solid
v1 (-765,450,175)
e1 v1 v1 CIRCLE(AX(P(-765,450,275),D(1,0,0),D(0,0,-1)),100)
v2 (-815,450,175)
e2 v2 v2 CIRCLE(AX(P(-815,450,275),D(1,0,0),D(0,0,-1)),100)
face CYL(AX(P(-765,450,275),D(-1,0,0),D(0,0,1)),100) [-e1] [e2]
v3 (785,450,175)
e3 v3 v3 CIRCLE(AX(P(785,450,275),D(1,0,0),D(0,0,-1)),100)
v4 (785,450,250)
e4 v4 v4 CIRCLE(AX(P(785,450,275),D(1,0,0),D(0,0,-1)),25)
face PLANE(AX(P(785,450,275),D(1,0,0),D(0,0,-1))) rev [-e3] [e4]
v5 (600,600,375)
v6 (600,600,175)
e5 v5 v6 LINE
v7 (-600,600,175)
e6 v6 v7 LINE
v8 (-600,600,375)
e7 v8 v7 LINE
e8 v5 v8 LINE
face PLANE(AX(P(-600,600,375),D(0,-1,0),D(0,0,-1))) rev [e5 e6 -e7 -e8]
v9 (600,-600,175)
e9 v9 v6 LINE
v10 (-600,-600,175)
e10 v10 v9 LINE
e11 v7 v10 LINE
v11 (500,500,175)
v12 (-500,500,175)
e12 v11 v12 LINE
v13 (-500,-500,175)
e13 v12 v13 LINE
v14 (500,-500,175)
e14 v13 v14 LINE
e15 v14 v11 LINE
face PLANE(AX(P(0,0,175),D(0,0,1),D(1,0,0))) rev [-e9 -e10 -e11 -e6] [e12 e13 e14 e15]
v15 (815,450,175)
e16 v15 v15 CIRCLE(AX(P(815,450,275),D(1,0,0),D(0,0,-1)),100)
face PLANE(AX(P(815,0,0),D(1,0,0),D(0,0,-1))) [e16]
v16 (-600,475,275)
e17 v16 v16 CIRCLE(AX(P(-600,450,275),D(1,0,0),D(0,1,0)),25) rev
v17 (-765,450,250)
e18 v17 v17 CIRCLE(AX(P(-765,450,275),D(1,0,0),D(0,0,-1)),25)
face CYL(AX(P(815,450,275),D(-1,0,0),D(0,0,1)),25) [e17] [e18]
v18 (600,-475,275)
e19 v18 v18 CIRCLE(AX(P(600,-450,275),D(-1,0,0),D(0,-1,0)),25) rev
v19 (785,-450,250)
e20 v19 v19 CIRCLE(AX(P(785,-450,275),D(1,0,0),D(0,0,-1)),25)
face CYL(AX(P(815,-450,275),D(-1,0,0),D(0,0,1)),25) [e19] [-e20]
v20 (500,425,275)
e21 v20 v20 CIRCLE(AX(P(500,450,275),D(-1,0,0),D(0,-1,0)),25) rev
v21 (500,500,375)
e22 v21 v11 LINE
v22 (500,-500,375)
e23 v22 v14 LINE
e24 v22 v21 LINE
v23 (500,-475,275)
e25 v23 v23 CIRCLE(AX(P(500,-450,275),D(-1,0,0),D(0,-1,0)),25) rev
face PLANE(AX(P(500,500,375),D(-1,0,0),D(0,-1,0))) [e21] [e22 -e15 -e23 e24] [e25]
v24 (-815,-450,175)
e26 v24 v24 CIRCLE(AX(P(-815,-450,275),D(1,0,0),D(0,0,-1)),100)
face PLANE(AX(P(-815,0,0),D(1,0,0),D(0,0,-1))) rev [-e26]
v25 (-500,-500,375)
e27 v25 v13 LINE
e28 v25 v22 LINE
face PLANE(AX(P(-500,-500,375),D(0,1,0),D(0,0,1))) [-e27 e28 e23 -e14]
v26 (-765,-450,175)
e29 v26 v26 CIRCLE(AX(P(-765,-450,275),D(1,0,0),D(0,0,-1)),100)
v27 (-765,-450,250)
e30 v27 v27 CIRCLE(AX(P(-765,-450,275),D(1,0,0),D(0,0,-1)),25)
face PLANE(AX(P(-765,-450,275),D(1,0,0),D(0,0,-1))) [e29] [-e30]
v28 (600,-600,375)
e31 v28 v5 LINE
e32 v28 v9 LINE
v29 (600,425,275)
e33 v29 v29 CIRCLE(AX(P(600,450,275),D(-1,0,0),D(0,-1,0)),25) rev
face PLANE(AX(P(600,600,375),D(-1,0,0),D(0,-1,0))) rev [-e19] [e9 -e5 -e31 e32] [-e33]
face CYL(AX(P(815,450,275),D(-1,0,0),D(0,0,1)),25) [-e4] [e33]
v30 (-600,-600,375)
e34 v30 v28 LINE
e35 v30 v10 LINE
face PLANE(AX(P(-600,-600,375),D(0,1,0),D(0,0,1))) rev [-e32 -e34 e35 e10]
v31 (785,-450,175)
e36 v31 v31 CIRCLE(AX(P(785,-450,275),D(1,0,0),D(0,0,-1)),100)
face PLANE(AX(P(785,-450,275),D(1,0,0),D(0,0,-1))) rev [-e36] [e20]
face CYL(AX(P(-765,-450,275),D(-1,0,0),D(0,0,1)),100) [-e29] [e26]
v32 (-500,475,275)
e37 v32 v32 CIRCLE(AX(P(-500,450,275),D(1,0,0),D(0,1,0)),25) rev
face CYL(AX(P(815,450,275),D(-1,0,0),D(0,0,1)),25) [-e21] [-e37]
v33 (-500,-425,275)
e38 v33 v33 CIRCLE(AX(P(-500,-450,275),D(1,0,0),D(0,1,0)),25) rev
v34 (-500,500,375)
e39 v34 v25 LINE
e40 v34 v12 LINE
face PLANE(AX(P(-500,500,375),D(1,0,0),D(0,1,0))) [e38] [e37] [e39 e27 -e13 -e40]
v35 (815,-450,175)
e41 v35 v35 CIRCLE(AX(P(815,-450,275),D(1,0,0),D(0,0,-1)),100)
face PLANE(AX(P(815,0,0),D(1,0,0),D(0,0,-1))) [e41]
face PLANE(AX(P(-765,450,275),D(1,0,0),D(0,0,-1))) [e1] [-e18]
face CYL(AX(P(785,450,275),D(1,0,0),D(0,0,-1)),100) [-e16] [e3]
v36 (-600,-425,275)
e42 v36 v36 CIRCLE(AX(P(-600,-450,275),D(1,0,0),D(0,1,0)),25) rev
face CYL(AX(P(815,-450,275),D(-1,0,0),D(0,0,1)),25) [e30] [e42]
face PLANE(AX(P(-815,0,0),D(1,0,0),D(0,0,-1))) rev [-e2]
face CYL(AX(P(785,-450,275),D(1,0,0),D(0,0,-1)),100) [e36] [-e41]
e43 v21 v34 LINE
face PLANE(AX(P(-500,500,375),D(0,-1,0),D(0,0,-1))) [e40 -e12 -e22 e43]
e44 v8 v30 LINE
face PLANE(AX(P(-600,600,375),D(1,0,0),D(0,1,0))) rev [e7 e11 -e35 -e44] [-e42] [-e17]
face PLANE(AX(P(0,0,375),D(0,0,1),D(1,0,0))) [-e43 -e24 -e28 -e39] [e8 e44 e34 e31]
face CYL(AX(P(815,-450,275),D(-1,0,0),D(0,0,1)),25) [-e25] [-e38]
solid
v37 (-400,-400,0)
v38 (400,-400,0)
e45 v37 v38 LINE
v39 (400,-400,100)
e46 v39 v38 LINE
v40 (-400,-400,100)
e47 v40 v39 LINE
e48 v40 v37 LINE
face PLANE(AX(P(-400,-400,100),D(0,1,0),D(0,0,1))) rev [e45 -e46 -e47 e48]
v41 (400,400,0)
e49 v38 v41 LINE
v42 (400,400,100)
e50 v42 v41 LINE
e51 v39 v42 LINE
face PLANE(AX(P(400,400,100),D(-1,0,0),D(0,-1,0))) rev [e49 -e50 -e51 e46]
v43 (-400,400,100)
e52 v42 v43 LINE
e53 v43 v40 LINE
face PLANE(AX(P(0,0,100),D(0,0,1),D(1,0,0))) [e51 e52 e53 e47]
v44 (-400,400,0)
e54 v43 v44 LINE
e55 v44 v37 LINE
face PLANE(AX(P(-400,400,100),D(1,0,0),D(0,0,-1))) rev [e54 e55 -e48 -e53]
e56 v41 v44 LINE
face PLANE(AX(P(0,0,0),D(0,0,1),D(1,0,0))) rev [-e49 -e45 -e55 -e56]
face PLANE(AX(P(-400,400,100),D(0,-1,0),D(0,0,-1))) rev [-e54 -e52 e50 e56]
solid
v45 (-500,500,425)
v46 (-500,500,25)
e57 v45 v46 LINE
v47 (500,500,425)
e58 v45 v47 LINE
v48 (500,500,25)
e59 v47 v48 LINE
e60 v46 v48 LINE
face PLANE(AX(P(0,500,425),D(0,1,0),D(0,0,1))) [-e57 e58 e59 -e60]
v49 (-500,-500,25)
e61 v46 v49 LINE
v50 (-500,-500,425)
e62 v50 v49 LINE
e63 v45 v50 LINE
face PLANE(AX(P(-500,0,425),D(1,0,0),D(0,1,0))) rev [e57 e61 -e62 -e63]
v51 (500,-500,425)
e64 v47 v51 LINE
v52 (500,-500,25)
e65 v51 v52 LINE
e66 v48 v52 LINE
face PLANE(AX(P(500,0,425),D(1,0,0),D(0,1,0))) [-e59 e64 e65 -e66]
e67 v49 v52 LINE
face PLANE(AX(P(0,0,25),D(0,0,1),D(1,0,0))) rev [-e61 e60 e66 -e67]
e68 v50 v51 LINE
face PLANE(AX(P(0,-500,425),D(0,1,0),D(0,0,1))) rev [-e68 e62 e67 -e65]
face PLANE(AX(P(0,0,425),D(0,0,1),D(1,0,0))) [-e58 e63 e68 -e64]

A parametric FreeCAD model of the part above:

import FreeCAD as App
import Part
import Sketcher
from FreeCAD import Vector


def add_polygon(sketch, points):
    """Adds a closed chain of lines whose ends are joined by coincident constraints."""
    first, n = sketch.GeometryCount, len(points)
    for a, b in zip(points, points[1:] + points[:1]):
        sketch.addGeometry(Part.LineSegment(App.Vector(*a, 0), App.Vector(*b, 0)), False)
    for i in range(n):
        sketch.addConstraint(Sketcher.Constraint("Coincident", first + i, 2, first + (i + 1) % n, 1))

doc = App.newDocument("Part")
params = doc.addObject("Spreadsheet::Sheet", "Params")
for row, (alias, value) in enumerate([
    ("sketch1_width", "800 mm"),
    ("pad1_length", "100 mm"),
    ("sketch2_width", "1000 mm"),
    ("pad2_length", "400 mm"),
    ("sketch3_width", "1200 mm"),
    ("sketch3_width2", "1000 mm"),
    ("pad3_length", "200 mm"),
    ("sketch4_diameter", "50 mm"),
    ("pad4_length", "1630 mm"),
    ("sketch5_diameter", "200 mm"),
    ("sketch5_diameter2", "50 mm"),
    ("pad5_length", "30 mm"),
    ("sketch6_diameter", "200 mm"),
    ("sketch6_diameter2", "50 mm"),
    ("pad6_length", "50 mm"),
], start=1):
    params.set(f"A{row}", alias)
    params.set(f"B{row}", "=" + value)
    params.setAlias(f"B{row}", alias)

body = doc.addObject("PartDesign::Body", "Body")

# Sketch on XY plane
sketch1 = body.newObject("Sketcher::SketchObject", "Sketch")
sketch1.AttachmentSupport = (doc.getObject("XY_Plane"), [""])
sketch1.MapMode = "FlatFace"
add_polygon(sketch1, [(-400, 400), (-400, -400), (400, -400), (400, 400)])  # lines 0-3
sketch1.addConstraint(Sketcher.Constraint("Vertical", 0))
sketch1.addConstraint(Sketcher.Constraint("Horizontal", 1))
sketch1.addConstraint(Sketcher.Constraint("Vertical", 2))
sketch1.addConstraint(Sketcher.Constraint("Horizontal", 3))
sketch1.addConstraint(Sketcher.Constraint("Symmetric", 0, 2, 2, 2, -1, 1))
sketch1.addConstraint(Sketcher.Constraint("Equal", 3, 0))
sketch1.addConstraint(Sketcher.Constraint("DistanceX", 1, 1, 1, 2, 800.0))
sketch1.setExpression("Constraints[10]", "Params.sketch1_width")
pad1 = body.newObject("PartDesign::Pad", "Pad")
pad1.Profile = sketch1
pad1.setExpression("Length", "Params.pad1_length")
body2 = doc.addObject("PartDesign::Body", "Body001")

# Sketch on XY plane
sketch2 = body2.newObject("Sketcher::SketchObject", "Sketch001")
sketch2.AttachmentSupport = (doc.getObject("XY_Plane001"), [""])
sketch2.MapMode = "FlatFace"
sketch2.AttachmentOffset = App.Placement(Vector(0, 0, 25), App.Rotation())
add_polygon(sketch2, [(-500, 500), (-500, -500), (500, -500), (500, 500)])  # lines 0-3
sketch2.addConstraint(Sketcher.Constraint("Vertical", 0))
sketch2.addConstraint(Sketcher.Constraint("Horizontal", 1))
sketch2.addConstraint(Sketcher.Constraint("Vertical", 2))
sketch2.addConstraint(Sketcher.Constraint("Horizontal", 3))
sketch2.addConstraint(Sketcher.Constraint("Symmetric", 0, 2, 2, 2, -1, 1))
sketch2.addConstraint(Sketcher.Constraint("Equal", 3, 0))
sketch2.addConstraint(Sketcher.Constraint("DistanceX", 1, 1, 1, 2, 1000.0))
sketch2.setExpression("Constraints[10]", "Params.sketch2_width")
pad2 = body2.newObject("PartDesign::Pad", "Pad001")
pad2.Profile = sketch2
pad2.setExpression("Length", "Params.pad2_length")
body3 = doc.addObject("PartDesign::Body", "Body002")

# Sketch on XY plane
sketch3 = body3.newObject("Sketcher::SketchObject", "Sketch002")
sketch3.AttachmentSupport = (doc.getObject("XY_Plane002"), [""])
sketch3.MapMode = "FlatFace"
sketch3.AttachmentOffset = App.Placement(Vector(0, 0, 175), App.Rotation())
add_polygon(sketch3, [(-600, 600), (-600, -600), (600, -600), (600, 600)])  # lines 0-3
add_polygon(sketch3, [(500, -500), (-500, -500), (-500, 500), (500, 500)])  # lines 4-7
sketch3.addConstraint(Sketcher.Constraint("Vertical", 0))
sketch3.addConstraint(Sketcher.Constraint("Horizontal", 1))
sketch3.addConstraint(Sketcher.Constraint("Vertical", 2))
sketch3.addConstraint(Sketcher.Constraint("Horizontal", 3))
sketch3.addConstraint(Sketcher.Constraint("Horizontal", 4))
sketch3.addConstraint(Sketcher.Constraint("Vertical", 5))
sketch3.addConstraint(Sketcher.Constraint("Horizontal", 6))
sketch3.addConstraint(Sketcher.Constraint("Vertical", 7))
sketch3.addConstraint(Sketcher.Constraint("Symmetric", 0, 2, 2, 2, -1, 1))
sketch3.addConstraint(Sketcher.Constraint("Symmetric", 4, 2, 6, 2, -1, 1))
sketch3.addConstraint(Sketcher.Constraint("Equal", 3, 0))
sketch3.addConstraint(Sketcher.Constraint("Equal", 6, 5))
sketch3.addConstraint(Sketcher.Constraint("DistanceX", 1, 1, 1, 2, 1200.0))
sketch3.addConstraint(Sketcher.Constraint("DistanceX", 4, 2, 4, 1, 1000.0))
sketch3.setExpression("Constraints[20]", "Params.sketch3_width")
sketch3.setExpression("Constraints[21]", "Params.sketch3_width2")
pad3 = body3.newObject("PartDesign::Pad", "Pad002")
pad3.Profile = sketch3
pad3.setExpression("Length", "Params.pad3_length")

# Sketch on YZ plane
sketch4 = body3.newObject("Sketcher::SketchObject", "Sketch003")
sketch4.AttachmentSupport = (doc.getObject("YZ_Plane002"), [""])
sketch4.MapMode = "FlatFace"
sketch4.addGeometry(Part.Circle(Vector(450, 275, 0), Vector(0, 0, 1), 25), False)
sketch4.addGeometry(Part.Circle(Vector(-450, 275, 0), Vector(0, 0, 1), 25), False)
sketch4.addConstraint(Sketcher.Constraint("Equal", 0, 1))
sketch4.addConstraint(Sketcher.Constraint("Symmetric", 0, 3, 1, 3, -2))
sketch4.addConstraint(Sketcher.Constraint("Diameter", 0, 50.0))
sketch4.addConstraint(Sketcher.Constraint("DistanceX", -1, 1, 0, 3, 450.0))
sketch4.addConstraint(Sketcher.Constraint("DistanceY", -1, 1, 0, 3, 275.0))
sketch4.setExpression("Constraints[2]", "Params.sketch4_diameter")
pad4 = body3.newObject("PartDesign::Pad", "Pad003")
pad4.Profile = sketch4
pad4.setExpression("Length", "Params.pad4_length")
pad4.Midplane = True

# Sketch on YZ plane
sketch5 = body3.newObject("Sketcher::SketchObject", "Sketch004")
sketch5.AttachmentSupport = (doc.getObject("YZ_Plane002"), [""])
sketch5.MapMode = "FlatFace"
sketch5.AttachmentOffset = App.Placement(Vector(0, 0, 815), App.Rotation())
sketch5.addGeometry(Part.Circle(Vector(-450, 275, 0), Vector(0, 0, 1), 100), False)
sketch5.addGeometry(Part.Circle(Vector(-450, 275, 0), Vector(0, 0, 1), 25), False)
sketch5.addGeometry(Part.Circle(Vector(450, 275, 0), Vector(0, 0, 1), 100), False)
sketch5.addGeometry(Part.Circle(Vector(450, 275, 0), Vector(0, 0, 1), 25), False)
sketch5.addConstraint(Sketcher.Constraint("Coincident", 1, 3, 0, 3))
sketch5.addConstraint(Sketcher.Constraint("Coincident", 3, 3, 2, 3))
sketch5.addConstraint(Sketcher.Constraint("Equal", 0, 2))
sketch5.addConstraint(Sketcher.Constraint("Equal", 1, 3))
sketch5.addConstraint(Sketcher.Constraint("Symmetric", 0, 3, 2, 3, -2))
sketch5.addConstraint(Sketcher.Constraint("Diameter", 0, 200.0))
sketch5.addConstraint(Sketcher.Constraint("Diameter", 1, 50.0))
sketch5.addConstraint(Sketcher.Constraint("DistanceX", 0, 3, -1, 1, 450.0))
sketch5.addConstraint(Sketcher.Constraint("DistanceY", -1, 1, 0, 3, 275.0))
sketch5.setExpression("Constraints[5]", "Params.sketch5_diameter")
sketch5.setExpression("Constraints[6]", "Params.sketch5_diameter2")
pad5 = body3.newObject("PartDesign::Pad", "Pad004")
pad5.Profile = sketch5
pad5.setExpression("Length", "Params.pad5_length")
pad5.Reversed = True

# Sketch on YZ plane
sketch6 = body3.newObject("Sketcher::SketchObject", "Sketch005")
sketch6.AttachmentSupport = (doc.getObject("YZ_Plane002"), [""])
sketch6.MapMode = "FlatFace"
sketch6.AttachmentOffset = App.Placement(Vector(0, 0, -815), App.Rotation())
sketch6.addGeometry(Part.Circle(Vector(-450, 275, 0), Vector(0, 0, 1), 100), False)
sketch6.addGeometry(Part.Circle(Vector(-450, 275, 0), Vector(0, 0, 1), 25), False)
sketch6.addGeometry(Part.Circle(Vector(450, 275, 0), Vector(0, 0, 1), 100), False)
sketch6.addGeometry(Part.Circle(Vector(450, 275, 0), Vector(0, 0, 1), 25), False)
sketch6.addConstraint(Sketcher.Constraint("Coincident", 1, 3, 0, 3))
sketch6.addConstraint(Sketcher.Constraint("Coincident", 3, 3, 2, 3))
sketch6.addConstraint(Sketcher.Constraint("Equal", 0, 2))
sketch6.addConstraint(Sketcher.Constraint("Equal", 1, 3))
sketch6.addConstraint(Sketcher.Constraint("Symmetric", 0, 3, 2, 3, -2))
sketch6.addConstraint(Sketcher.Constraint("Diameter", 0, 200.0))
sketch6.addConstraint(Sketcher.Constraint("Diameter", 1, 50.0))
sketch6.addConstraint(Sketcher.Constraint("DistanceX", 0, 3, -1, 1, 450.0))
sketch6.addConstraint(Sketcher.Constraint("DistanceY", -1, 1, 0, 3, 275.0))
sketch6.setExpression("Constraints[5]", "Params.sketch6_diameter")
sketch6.setExpression("Constraints[6]", "Params.sketch6_diameter2")
pad6 = body3.newObject("PartDesign::Pad", "Pad005")
pad6.Profile = sketch6
pad6.setExpression("Length", "Params.pad6_length")

doc.recompute()
